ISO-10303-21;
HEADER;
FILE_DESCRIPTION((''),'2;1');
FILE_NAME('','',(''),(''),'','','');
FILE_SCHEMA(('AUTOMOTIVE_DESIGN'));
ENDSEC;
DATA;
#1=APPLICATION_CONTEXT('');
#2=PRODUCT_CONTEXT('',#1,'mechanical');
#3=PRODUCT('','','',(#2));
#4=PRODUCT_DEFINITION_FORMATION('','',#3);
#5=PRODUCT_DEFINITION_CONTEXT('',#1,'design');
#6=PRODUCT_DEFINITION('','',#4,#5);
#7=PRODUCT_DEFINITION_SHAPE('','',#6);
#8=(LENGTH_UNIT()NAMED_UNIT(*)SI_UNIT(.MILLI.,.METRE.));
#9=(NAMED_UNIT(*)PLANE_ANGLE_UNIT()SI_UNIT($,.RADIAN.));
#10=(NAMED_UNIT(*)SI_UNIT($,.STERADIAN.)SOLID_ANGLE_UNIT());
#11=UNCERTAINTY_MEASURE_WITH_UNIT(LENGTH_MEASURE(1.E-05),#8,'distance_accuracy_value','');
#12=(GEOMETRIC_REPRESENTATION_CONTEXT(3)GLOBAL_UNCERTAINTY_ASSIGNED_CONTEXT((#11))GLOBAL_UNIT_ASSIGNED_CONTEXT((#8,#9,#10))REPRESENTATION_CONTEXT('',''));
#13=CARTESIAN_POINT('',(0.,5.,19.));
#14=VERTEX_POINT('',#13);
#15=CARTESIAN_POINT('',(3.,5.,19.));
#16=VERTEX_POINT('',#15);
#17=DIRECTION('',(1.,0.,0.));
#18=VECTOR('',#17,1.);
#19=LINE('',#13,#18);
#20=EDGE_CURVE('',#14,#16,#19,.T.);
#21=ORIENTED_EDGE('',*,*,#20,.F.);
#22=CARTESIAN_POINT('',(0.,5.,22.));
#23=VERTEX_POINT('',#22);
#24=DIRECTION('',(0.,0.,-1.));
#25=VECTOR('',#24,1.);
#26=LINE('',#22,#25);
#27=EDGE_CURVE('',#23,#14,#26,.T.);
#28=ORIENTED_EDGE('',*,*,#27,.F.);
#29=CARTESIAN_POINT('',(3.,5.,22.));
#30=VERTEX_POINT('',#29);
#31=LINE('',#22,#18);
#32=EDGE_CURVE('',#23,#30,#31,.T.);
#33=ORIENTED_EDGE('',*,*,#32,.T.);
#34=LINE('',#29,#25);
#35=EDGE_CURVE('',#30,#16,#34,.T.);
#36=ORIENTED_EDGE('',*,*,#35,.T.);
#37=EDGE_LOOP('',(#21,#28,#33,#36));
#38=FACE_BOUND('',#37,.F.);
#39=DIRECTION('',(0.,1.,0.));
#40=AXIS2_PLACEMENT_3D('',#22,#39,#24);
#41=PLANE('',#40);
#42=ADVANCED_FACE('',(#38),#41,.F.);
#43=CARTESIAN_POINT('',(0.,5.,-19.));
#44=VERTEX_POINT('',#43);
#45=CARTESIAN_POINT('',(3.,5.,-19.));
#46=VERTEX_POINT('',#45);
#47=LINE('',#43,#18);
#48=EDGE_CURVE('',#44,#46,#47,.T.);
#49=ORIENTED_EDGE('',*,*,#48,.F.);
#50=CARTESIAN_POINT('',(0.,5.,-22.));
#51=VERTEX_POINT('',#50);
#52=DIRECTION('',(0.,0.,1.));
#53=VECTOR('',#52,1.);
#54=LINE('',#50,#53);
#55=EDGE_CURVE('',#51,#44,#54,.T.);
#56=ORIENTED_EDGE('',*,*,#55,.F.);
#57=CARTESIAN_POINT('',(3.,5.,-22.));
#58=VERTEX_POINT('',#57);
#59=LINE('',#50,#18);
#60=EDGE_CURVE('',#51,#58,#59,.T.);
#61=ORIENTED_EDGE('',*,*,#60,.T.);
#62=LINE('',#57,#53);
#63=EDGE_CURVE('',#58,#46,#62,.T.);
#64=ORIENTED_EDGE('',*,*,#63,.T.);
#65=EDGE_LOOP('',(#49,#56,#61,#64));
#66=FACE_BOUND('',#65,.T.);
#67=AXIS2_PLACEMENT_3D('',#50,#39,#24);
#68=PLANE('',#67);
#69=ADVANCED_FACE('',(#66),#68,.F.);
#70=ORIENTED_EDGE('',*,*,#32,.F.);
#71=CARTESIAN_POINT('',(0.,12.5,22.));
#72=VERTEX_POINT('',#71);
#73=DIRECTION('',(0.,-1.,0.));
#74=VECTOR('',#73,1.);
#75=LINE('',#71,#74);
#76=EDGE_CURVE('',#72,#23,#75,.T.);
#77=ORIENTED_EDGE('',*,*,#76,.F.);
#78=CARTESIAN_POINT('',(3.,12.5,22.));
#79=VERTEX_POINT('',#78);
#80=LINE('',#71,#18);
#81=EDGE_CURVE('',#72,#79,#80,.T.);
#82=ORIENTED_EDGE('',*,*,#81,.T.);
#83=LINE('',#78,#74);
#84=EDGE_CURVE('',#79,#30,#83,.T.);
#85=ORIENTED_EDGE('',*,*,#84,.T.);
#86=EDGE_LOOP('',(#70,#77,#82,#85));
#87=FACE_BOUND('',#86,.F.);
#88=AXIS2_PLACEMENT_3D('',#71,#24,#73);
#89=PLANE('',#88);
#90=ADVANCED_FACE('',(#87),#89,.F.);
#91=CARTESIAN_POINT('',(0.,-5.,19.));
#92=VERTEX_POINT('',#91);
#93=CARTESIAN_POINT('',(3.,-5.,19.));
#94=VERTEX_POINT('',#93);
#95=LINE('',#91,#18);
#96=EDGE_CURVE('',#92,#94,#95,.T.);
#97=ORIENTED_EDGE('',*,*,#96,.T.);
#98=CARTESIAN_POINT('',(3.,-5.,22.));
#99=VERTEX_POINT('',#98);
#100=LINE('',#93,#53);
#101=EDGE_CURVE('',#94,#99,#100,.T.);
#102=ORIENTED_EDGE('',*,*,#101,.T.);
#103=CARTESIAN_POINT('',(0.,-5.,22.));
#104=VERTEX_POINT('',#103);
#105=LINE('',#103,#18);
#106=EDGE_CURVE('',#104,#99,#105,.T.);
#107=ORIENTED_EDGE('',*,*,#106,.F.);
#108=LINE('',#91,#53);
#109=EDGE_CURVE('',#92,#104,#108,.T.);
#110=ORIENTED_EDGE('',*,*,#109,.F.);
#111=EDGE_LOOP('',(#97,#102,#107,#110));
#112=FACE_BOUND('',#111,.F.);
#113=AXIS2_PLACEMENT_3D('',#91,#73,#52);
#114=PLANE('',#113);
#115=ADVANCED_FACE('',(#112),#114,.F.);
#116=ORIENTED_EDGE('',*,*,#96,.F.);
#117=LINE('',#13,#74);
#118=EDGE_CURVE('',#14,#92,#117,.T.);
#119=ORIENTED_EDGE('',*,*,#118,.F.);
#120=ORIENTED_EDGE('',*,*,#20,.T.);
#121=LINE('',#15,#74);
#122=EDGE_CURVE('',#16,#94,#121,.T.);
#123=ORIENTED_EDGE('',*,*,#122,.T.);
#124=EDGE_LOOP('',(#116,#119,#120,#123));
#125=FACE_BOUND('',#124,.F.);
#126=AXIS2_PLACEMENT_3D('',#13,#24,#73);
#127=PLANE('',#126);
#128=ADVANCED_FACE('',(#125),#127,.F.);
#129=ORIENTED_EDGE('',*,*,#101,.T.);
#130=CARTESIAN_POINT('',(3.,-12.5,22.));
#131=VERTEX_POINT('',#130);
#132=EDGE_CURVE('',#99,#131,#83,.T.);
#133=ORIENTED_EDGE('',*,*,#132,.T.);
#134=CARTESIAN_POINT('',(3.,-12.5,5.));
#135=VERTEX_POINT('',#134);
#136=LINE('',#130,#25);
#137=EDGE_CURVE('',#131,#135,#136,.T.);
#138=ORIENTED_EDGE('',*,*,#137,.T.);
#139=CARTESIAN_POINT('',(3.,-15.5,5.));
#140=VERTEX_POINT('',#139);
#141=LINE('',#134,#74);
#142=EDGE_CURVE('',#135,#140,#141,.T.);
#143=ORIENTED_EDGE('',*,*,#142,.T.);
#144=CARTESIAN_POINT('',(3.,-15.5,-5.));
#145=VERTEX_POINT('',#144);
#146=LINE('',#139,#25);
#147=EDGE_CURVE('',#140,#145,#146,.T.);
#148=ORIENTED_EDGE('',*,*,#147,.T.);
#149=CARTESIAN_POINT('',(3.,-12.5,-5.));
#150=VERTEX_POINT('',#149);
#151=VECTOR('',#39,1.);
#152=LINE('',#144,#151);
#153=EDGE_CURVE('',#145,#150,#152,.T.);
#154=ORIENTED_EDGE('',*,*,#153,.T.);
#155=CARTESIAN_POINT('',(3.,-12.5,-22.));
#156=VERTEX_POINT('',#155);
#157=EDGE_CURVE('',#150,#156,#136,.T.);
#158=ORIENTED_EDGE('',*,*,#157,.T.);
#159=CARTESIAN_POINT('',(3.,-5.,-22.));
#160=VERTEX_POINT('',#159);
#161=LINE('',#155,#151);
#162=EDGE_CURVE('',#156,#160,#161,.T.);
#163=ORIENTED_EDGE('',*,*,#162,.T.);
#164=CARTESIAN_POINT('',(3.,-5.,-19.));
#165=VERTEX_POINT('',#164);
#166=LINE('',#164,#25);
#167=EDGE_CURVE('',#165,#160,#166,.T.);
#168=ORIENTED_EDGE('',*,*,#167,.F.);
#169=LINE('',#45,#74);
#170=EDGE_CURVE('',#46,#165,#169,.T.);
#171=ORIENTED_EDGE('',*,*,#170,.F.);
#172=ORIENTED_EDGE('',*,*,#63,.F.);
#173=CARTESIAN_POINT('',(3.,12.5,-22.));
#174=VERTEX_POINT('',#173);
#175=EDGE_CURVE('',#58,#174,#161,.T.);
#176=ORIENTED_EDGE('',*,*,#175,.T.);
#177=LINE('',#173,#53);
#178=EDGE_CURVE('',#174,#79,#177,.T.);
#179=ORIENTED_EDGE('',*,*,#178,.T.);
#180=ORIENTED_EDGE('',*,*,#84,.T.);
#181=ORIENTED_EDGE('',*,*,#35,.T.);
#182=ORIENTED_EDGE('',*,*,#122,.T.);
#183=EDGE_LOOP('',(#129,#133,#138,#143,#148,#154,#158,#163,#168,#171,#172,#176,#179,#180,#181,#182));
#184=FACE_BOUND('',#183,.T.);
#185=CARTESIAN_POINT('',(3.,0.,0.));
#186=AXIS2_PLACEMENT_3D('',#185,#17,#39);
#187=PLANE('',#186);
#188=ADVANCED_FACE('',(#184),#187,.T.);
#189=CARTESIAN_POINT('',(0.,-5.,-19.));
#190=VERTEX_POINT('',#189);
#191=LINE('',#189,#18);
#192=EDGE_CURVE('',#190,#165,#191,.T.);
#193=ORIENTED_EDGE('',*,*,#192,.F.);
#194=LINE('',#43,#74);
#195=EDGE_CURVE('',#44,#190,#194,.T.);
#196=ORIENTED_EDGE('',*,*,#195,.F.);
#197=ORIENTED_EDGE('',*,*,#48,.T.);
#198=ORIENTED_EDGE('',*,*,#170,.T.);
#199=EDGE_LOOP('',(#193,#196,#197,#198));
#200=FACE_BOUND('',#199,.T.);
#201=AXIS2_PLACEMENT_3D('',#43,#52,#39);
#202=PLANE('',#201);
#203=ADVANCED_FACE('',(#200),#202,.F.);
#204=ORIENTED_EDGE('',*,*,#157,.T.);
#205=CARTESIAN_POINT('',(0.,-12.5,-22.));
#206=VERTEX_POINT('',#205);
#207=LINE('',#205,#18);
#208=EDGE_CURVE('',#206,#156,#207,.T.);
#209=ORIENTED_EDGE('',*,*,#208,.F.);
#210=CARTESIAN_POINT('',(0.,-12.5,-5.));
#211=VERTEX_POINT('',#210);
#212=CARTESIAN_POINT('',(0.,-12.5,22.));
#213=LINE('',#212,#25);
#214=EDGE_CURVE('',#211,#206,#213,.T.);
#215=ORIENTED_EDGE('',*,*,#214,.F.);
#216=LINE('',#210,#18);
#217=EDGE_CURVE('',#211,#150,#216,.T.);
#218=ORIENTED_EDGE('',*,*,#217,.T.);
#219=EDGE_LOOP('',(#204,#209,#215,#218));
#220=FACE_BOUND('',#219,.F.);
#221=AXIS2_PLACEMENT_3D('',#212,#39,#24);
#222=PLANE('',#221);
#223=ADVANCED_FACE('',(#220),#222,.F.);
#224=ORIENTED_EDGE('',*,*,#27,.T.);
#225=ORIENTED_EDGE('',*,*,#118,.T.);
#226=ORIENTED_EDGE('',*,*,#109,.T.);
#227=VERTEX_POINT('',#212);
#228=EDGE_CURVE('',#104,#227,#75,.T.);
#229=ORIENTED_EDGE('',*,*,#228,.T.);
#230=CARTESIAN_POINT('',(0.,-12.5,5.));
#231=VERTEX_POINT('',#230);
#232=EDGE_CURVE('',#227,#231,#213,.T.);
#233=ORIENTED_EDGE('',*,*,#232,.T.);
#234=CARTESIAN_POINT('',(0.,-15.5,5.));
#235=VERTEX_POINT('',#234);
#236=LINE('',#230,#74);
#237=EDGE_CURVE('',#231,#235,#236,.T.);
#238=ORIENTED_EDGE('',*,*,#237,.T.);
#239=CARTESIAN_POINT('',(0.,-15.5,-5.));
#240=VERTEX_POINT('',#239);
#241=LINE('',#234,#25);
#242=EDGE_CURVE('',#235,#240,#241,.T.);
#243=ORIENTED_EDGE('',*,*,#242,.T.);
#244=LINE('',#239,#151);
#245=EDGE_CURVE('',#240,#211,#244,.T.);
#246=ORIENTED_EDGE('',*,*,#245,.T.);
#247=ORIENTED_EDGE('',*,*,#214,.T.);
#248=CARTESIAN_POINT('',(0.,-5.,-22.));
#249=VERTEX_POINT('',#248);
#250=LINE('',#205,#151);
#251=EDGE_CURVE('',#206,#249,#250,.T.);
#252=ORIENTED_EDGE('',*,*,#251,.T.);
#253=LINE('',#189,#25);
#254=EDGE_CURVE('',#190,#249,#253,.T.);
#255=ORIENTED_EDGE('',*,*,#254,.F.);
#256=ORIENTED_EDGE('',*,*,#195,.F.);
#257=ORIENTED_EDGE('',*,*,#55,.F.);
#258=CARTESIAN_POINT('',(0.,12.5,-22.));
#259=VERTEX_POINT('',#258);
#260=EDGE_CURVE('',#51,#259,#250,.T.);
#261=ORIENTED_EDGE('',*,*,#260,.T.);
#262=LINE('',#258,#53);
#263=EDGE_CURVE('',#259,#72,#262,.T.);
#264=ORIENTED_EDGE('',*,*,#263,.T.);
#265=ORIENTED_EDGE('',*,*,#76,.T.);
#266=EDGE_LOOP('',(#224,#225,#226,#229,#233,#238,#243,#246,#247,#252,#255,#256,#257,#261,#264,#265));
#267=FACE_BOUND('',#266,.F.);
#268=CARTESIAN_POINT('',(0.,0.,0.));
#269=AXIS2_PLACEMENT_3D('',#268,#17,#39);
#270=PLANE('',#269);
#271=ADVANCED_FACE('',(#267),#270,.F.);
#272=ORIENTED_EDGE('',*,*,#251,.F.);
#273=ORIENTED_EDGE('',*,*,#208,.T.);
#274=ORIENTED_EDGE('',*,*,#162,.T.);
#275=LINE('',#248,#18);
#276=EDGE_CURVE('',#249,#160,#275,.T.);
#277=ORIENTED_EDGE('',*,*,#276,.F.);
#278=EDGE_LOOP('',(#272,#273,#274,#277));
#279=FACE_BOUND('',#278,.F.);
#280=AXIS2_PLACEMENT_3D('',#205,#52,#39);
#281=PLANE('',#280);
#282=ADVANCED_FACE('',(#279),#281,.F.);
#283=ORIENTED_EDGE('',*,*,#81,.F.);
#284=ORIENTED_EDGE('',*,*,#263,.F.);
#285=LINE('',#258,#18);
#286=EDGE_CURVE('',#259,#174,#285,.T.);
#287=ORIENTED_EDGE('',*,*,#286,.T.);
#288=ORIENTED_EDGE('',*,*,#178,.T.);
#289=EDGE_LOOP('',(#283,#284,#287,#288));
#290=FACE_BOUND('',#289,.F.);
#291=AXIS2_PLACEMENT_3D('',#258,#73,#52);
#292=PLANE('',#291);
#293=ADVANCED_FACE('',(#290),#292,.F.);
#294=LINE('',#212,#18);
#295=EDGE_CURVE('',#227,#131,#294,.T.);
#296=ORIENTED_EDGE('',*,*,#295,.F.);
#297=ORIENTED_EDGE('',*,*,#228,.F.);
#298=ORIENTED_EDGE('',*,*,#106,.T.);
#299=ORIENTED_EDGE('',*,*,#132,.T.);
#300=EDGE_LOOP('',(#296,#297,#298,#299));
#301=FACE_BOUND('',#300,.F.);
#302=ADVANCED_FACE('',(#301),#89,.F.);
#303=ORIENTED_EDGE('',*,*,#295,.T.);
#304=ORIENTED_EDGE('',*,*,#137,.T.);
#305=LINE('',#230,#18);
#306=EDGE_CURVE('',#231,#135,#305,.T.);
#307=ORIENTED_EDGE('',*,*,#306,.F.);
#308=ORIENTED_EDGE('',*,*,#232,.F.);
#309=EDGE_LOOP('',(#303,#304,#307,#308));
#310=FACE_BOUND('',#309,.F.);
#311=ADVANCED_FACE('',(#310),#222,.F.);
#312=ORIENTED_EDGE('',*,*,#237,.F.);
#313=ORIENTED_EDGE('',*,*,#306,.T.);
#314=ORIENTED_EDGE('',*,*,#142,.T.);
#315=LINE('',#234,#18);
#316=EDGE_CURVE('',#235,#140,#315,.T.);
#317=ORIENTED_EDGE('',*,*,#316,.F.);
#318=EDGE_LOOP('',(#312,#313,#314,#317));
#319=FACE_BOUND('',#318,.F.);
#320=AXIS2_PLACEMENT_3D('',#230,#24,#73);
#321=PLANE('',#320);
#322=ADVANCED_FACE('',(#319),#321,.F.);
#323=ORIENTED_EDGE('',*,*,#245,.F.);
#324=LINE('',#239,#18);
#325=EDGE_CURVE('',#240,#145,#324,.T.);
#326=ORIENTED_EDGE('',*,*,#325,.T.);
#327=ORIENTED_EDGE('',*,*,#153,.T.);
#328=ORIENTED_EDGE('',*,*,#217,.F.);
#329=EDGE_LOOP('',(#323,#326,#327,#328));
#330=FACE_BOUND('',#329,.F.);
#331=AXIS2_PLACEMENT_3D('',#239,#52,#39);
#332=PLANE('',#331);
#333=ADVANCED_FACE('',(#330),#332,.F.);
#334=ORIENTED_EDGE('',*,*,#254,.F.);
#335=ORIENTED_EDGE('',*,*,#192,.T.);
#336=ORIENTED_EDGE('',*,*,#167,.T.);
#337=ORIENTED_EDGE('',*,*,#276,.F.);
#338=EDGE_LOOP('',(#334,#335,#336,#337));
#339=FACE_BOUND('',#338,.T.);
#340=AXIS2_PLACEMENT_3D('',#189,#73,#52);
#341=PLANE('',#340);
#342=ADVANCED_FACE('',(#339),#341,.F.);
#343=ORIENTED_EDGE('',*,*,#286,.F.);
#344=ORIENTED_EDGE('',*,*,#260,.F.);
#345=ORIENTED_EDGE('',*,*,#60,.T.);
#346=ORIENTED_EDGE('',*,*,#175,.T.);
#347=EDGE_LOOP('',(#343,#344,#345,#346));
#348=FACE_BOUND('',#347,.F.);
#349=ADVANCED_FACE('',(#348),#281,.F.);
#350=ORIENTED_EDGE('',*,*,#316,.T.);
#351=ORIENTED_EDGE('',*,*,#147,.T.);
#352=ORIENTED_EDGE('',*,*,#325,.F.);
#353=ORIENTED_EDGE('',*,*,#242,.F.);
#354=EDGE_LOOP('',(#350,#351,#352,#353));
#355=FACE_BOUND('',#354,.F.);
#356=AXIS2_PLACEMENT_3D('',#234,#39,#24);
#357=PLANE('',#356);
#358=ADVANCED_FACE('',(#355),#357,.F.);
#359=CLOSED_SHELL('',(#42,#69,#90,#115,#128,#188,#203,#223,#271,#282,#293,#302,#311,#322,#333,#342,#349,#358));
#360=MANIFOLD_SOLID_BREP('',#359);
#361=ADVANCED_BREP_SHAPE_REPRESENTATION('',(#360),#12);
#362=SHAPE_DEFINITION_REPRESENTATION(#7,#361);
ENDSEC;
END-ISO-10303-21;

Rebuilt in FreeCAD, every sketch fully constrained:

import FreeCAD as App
import Part
import Sketcher


def add_polygon(sketch, points):
    """Adds a closed chain of lines whose ends are joined by coincident constraints."""
    first, n = sketch.GeometryCount, len(points)
    for a, b in zip(points, points[1:] + points[:1]):
        sketch.addGeometry(Part.LineSegment(App.Vector(*a, 0), App.Vector(*b, 0)), False)
    for i in range(n):
        sketch.addConstraint(Sketcher.Constraint("Coincident", first + i, 2, first + (i + 1) % n, 1))

doc = App.newDocument("Part")
body = doc.addObject("PartDesign::Body", "Body")

sketch1 = body.newObject("Sketcher::SketchObject", "Sketch")
sketch1.AttachmentSupport = (doc.getObject("YZ_Plane"), [""])
sketch1.MapMode = "FlatFace"
add_polygon(sketch1, [(-12, 22), (-12, -22), (12, -22), (12, 22)])
sketch1.addConstraint([
    Sketcher.Constraint("Vertical", 0),
    Sketcher.Constraint("Horizontal", 1),
    Sketcher.Constraint("Vertical", 2),
    Sketcher.Constraint("Horizontal", 3),
    Sketcher.Constraint("Symmetric", 0, 2, 2, 2, -1, 1),
    Sketcher.Constraint("DistanceX", 1, 1, 1, 2, 25.0),
    Sketcher.Constraint("DistanceY", 0, 2, 0, 1, 44.0),
])
pad1 = body.newObject("PartDesign::Pad", "Pad")
pad1.Profile = sketch1
pad1.Length = 3

sketch2 = body.newObject("Sketcher::SketchObject", "Sketch001")
sketch2.AttachmentSupport = (doc.getObject("YZ_Plane"), [""])
sketch2.MapMode = "FlatFace"
add_polygon(sketch2, [(-12.5, 5), (-12.5, -5), (-15.5, -5), (-15.5, 5)])
sketch2.addConstraint([
    Sketcher.Constraint("Vertical", 0),
    Sketcher.Constraint("Horizontal", 1),
    Sketcher.Constraint("Vertical", 2),
    Sketcher.Constraint("Horizontal", 3),
    Sketcher.Constraint("DistanceX", 1, 2, 1, 1, 3.0),
    Sketcher.Constraint("DistanceY", 0, 2, 0, 1, 10.0),
    Sketcher.Constraint("DistanceY", 0, 2, -1, 1, 5.0),
    Sketcher.Constraint("DistanceX", 0, 2, -1, 1, 12.5),
])
pad2 = body.newObject("PartDesign::Pad", "Pad001")
pad2.Profile = sketch2
pad2.Length = 3

sketch3 = body.newObject("Sketcher::SketchObject", "Sketch002")
sketch3.AttachmentSupport = (doc.getObject("YZ_Plane"), [""])
sketch3.MapMode = "FlatFace"
add_polygon(sketch3, [(-5, 22), (5, 22), (5, 19), (-5, 19)])
sketch3.addConstraint([
    Sketcher.Constraint("Horizontal", 0),
    Sketcher.Constraint("Vertical", 1),
    Sketcher.Constraint("Horizontal", 2),
    Sketcher.Constraint("Vertical", 3),
    Sketcher.Constraint("DistanceX", 0, 1, 0, 2, 10.0),
    Sketcher.Constraint("DistanceY", 1, 2, 1, 1, 3.0),
    Sketcher.Constraint("DistanceX", -1, 1, 0, 2, 5.0),
    Sketcher.Constraint("DistanceY", -1, 1, 0, 2, 22.0),
])
pocket1 = body.newObject("PartDesign::Pocket", "Pocket")
pocket1.Profile = sketch3
pocket1.Length = 3
pocket1.Reversed = True
doc.recompute()

mirrored = body.newObject("PartDesign::Mirrored", "Mirrored")
mirrored.Originals = [pocket1]
mirrored.MirrorPlane = (doc.getObject("XY_Plane"), [""])
body.Tip = mirrored

doc.recompute()
